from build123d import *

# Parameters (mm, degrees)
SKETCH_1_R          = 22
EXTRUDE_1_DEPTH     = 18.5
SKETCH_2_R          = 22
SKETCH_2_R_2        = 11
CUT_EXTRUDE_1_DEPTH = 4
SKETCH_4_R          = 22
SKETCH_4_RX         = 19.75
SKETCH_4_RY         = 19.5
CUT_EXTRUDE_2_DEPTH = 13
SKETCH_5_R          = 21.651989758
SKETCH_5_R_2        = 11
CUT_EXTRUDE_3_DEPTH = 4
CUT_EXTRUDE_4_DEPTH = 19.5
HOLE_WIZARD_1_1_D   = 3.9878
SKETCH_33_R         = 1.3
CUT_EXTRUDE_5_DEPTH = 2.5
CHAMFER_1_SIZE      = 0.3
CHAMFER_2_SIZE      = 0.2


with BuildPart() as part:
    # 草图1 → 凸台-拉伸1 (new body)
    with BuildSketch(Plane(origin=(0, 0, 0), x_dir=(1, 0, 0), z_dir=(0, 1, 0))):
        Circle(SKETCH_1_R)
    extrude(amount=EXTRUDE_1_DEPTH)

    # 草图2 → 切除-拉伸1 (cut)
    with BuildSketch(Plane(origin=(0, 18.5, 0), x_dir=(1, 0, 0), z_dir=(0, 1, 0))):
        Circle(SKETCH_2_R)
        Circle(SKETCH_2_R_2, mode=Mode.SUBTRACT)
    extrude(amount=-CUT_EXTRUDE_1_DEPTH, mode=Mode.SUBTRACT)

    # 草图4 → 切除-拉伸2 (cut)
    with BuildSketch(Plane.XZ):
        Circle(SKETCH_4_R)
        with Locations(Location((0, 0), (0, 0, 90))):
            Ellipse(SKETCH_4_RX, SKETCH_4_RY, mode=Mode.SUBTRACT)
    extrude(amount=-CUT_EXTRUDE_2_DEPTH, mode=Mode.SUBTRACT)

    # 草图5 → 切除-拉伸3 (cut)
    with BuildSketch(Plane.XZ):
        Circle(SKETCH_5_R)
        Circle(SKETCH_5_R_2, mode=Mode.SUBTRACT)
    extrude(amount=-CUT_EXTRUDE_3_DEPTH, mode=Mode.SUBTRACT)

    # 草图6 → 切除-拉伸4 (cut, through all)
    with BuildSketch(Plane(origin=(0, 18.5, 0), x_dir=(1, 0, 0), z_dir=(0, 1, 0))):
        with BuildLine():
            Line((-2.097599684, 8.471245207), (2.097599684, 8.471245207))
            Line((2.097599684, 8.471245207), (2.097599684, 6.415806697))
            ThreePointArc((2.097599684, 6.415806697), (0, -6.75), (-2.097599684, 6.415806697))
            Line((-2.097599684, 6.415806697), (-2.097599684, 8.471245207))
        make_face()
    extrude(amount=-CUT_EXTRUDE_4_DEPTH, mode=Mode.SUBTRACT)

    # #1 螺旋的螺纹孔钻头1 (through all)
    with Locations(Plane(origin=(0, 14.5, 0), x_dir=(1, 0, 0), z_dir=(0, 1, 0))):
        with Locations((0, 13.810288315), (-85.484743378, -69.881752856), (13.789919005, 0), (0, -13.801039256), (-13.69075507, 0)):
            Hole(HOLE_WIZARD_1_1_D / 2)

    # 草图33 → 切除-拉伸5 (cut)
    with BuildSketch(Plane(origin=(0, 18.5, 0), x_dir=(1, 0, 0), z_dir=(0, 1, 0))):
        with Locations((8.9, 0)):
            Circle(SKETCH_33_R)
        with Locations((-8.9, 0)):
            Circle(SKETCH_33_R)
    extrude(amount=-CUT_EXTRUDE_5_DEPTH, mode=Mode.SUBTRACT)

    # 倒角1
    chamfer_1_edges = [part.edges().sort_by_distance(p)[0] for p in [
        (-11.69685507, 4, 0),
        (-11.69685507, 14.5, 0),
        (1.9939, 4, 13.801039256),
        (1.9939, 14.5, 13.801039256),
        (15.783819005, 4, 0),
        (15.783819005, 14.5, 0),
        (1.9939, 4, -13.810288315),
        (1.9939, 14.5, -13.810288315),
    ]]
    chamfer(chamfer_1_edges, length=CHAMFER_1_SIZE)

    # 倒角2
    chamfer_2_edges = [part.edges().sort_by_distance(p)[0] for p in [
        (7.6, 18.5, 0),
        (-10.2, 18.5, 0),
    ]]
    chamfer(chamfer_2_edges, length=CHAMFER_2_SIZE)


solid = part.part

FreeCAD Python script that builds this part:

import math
import FreeCAD as App
import Part
import Sketcher


def edges_at(feature, points):
    """Names of the edges that pass closest to the given points."""
    edges = feature.Shape.Edges
    near = lambda p: min(range(len(edges)), key=lambda i: edges[i].distToShape(Part.Vertex(*p))[0])
    return sorted({f"Edge{near(p) + 1}" for p in points})

doc = App.newDocument("Part")
params = doc.addObject("Spreadsheet::Sheet", "Params")
for row, (alias, value) in enumerate([
    ("sketch1_diameter", "44 mm"),
    ("pad1_length", "18.5 mm"),
    ("sketch2_diameter", "44 mm"),
    ("sketch2_diameter2", "22 mm"),
    ("pocket1_length", "4 mm"),
    ("sketch3_diameter", "44 mm"),
    ("pocket2_length", "13 mm"),
    ("sketch4_diameter", "22 mm"),
    ("pocket3_length", "4 mm"),
    ("sketch5_radius", "6.75 mm"),
    ("hole_diameter", "3.9878 mm"),
    ("sketch7_diameter", "2.6 mm"),
    ("pocket5_length", "2.5 mm"),
    ("chamfer_size", "0.3 mm"),
    ("chamfer2_size", "0.2 mm"),
], start=1):
    params.set(f"A{row}", alias)
    params.set(f"B{row}", "=" + value)
    params.setAlias(f"B{row}", alias)

body = doc.addObject("PartDesign::Body", "Body")

# Sketch on XZ plane
sketch1 = doc.addObject("Sketcher::SketchObject", "Sketch")
body.addObject(sketch1)
sketch1.AttachmentSupport = (doc.XZ_Plane, [""])
sketch1.MapMode = "FlatFace"
sketch1.addGeometry(Part.Circle(App.Vector(0, 0, 0), App.Vector(0, 0, 1), 22), False)
sketch1.addConstraint(Sketcher.Constraint("Coincident", 0, 3, -1, 1))
sketch1.addConstraint(Sketcher.Constraint("Diameter", 0, 44.0))
sketch1.setExpression("Constraints[1]", "Params.sketch1_diameter")
pad1 = doc.addObject("PartDesign::Pad", "Pad")
body.addObject(pad1)
pad1.Profile = sketch1
pad1.setExpression("Length", "Params.pad1_length")
pad1.Reversed = True

# Sketch on XZ plane
sketch2 = doc.addObject("Sketcher::SketchObject", "Sketch001")
body.addObject(sketch2)
sketch2.AttachmentSupport = (doc.XZ_Plane, [""])
sketch2.MapMode = "FlatFace"
sketch2.AttachmentOffset = App.Placement(App.Vector(0, 0, -18.5), App.Rotation())
sketch2.addGeometry(Part.Circle(App.Vector(0, 0, 0), App.Vector(0, 0, 1), 22), False)
sketch2.addGeometry(Part.Circle(App.Vector(0, 0, 0), App.Vector(0, 0, 1), 11), False)
sketch2.addConstraint(Sketcher.Constraint("Coincident", 0, 3, -1, 1))
sketch2.addConstraint(Sketcher.Constraint("Coincident", 1, 3, -1, 1))
sketch2.addConstraint(Sketcher.Constraint("Diameter", 0, 44.0))
sketch2.addConstraint(Sketcher.Constraint("Diameter", 1, 22.0))
sketch2.setExpression("Constraints[2]", "Params.sketch2_diameter")
sketch2.setExpression("Constraints[3]", "Params.sketch2_diameter2")
pocket1 = doc.addObject("PartDesign::Pocket", "Pocket")
body.addObject(pocket1)
pocket1.Profile = sketch2
pocket1.setExpression("Length", "Params.pocket1_length")
pocket1.Reversed = True

# Sketch on XZ plane
sketch3 = doc.addObject("Sketcher::SketchObject", "Sketch002")
body.addObject(sketch3)
sketch3.AttachmentSupport = (doc.XZ_Plane, [""])
sketch3.MapMode = "FlatFace"
sketch3.addGeometry(Part.Circle(App.Vector(0, 0, 0), App.Vector(0, 0, 1), 22), False)
sketch3.addGeometry(Part.Ellipse(App.Vector(0, 19.75, 0), App.Vector(-19.5, 0, 0), App.Vector(0, 0, 0)), False)
sketch3.addConstraint(Sketcher.Constraint("Block", 1))
sketch3.addConstraint(Sketcher.Constraint("Coincident", 0, 3, -1, 1))
sketch3.addConstraint(Sketcher.Constraint("Diameter", 0, 44.0))
sketch3.setExpression("Constraints[2]", "Params.sketch3_diameter")
pocket2 = doc.addObject("PartDesign::Pocket", "Pocket001")
body.addObject(pocket2)
pocket2.Profile = sketch3
pocket2.setExpression("Length", "Params.pocket2_length")

# Sketch on XZ plane
sketch4 = doc.addObject("Sketcher::SketchObject", "Sketch003")
body.addObject(sketch4)
sketch4.AttachmentSupport = (doc.XZ_Plane, [""])
sketch4.MapMode = "FlatFace"
sketch4.addGeometry(Part.Circle(App.Vector(0, 0, 0), App.Vector(0, 0, 1), 22), False)
sketch4.addGeometry(Part.Circle(App.Vector(0, 0, 0), App.Vector(0, 0, 1), 11), False)
sketch4.addConstraint(Sketcher.Constraint("Coincident", 0, 3, -1, 1))
sketch4.addConstraint(Sketcher.Constraint("Coincident", 1, 3, -1, 1))
sketch4.addConstraint(Sketcher.Constraint("Diameter", 1, 22.0))
sketch4.addConstraint(Sketcher.Constraint("Diameter", 0, 43.30398))
sketch4.setExpression("Constraints[2]", "Params.sketch4_diameter")
pocket3 = doc.addObject("PartDesign::Pocket", "Pocket002")
body.addObject(pocket3)
pocket3.Profile = sketch4
pocket3.setExpression("Length", "Params.pocket3_length")

# Sketch on XZ plane
sketch5 = doc.addObject("Sketcher::SketchObject", "Sketch004")
body.addObject(sketch5)
sketch5.AttachmentSupport = (doc.XZ_Plane, [""])
sketch5.MapMode = "FlatFace"
sketch5.AttachmentOffset = App.Placement(App.Vector(0, 0, -18.5), App.Rotation())
sketch5.addGeometry(Part.LineSegment(App.Vector(2.1, -8.5, 0), App.Vector(-2.1, -8.5, 0)), False)
sketch5.addGeometry(Part.LineSegment(App.Vector(-2.1, -8.5, 0), App.Vector(-2.1, -6.4, 0)), False)
sketch5.addGeometry(Part.ArcOfCircle(Part.Circle(App.Vector(0, 0, 0), App.Vector(0, 0, 1), 6.8), math.radians(-72), math.radians(252)), False)
sketch5.addGeometry(Part.LineSegment(App.Vector(2.1, -6.4, 0), App.Vector(2.1, -8.5, 0)), False)
sketch5.addConstraint(Sketcher.Constraint("Coincident", 0, 2, 1, 1))
sketch5.addConstraint(Sketcher.Constraint("Coincident", 1, 2, 2, 2))
sketch5.addConstraint(Sketcher.Constraint("Coincident", 2, 1, 3, 1))
sketch5.addConstraint(Sketcher.Constraint("Coincident", 3, 2, 0, 1))
sketch5.addConstraint(Sketcher.Constraint("Horizontal", 0))
sketch5.addConstraint(Sketcher.Constraint("Vertical", 1))
sketch5.addConstraint(Sketcher.Constraint("Vertical", 3))
sketch5.addConstraint(Sketcher.Constraint("Coincident", 2, 3, -1, 1))
sketch5.addConstraint(Sketcher.Constraint("Horizontal", 1, 2, 2, 1))
sketch5.addConstraint(Sketcher.Constraint("Radius", 2, 6.75))
sketch5.addConstraint(Sketcher.Constraint("DistanceX", 0, 2, 0, 1, 4.195199))
sketch5.addConstraint(Sketcher.Constraint("DistanceY", 1, 1, 1, 2, 2.055439))
sketch5.setExpression("Constraints[9]", "Params.sketch5_radius")
pocket4 = doc.addObject("PartDesign::Pocket", "Pocket003")
body.addObject(pocket4)
pocket4.Profile = sketch5
pocket4.Type = "ThroughAll"
pocket4.Reversed = True

# Sketch on XZ plane
sketch6 = doc.addObject("Sketcher::SketchObject", "Sketch005")
body.addObject(sketch6)
sketch6.AttachmentSupport = (doc.XZ_Plane, [""])
sketch6.MapMode = "FlatFace"
sketch6.AttachmentOffset = App.Placement(App.Vector(0, 0, -14.5), App.Rotation())
sketch6.addGeometry(Part.Circle(App.Vector(0, -13.8, 0), App.Vector(0, 0, 1), 2), False)
sketch6.addGeometry(Part.Circle(App.Vector(-85.5, 69.9, 0), App.Vector(0, 0, 1), 2), False)
sketch6.addGeometry(Part.Circle(App.Vector(13.8, 0, 0), App.Vector(0, 0, 1), 2), False)
sketch6.addGeometry(Part.Circle(App.Vector(0, 13.8, 0), App.Vector(0, 0, 1), 2), False)
sketch6.addGeometry(Part.Circle(App.Vector(-13.7, 0, 0), App.Vector(0, 0, 1), 2), False)
sketch6.addConstraint(Sketcher.Constraint("Equal", 0, 1))
sketch6.addConstraint(Sketcher.Constraint("Equal", 1, 2))
sketch6.addConstraint(Sketcher.Constraint("Equal", 2, 3))
sketch6.addConstraint(Sketcher.Constraint("Equal", 3, 4))
sketch6.addConstraint(Sketcher.Constraint("PointOnObject", 0, 3, -2))
sketch6.addConstraint(Sketcher.Constraint("PointOnObject", 2, 3, -1))
sketch6.addConstraint(Sketcher.Constraint("PointOnObject", 3, 3, -2))
sketch6.addConstraint(Sketcher.Constraint("PointOnObject", 4, 3, -1))
sketch6.addConstraint(Sketcher.Constraint("Diameter", 0, 3.9878))
sketch6.addConstraint(Sketcher.Constraint("DistanceY", 0, 3, -1, 1, 13.810288))
sketch6.addConstraint(Sketcher.Constraint("DistanceX", -1, 1, 2, 3, 13.789919))
sketch6.addConstraint(Sketcher.Constraint("DistanceY", -1, 1, 3, 3, 13.801039))
sketch6.addConstraint(Sketcher.Constraint("DistanceY", 0, 3, 1, 3, 83.692041))
sketch6.addConstraint(Sketcher.Constraint("DistanceX", 1, 3, 4, 3, 71.793988))
sketch6.addConstraint(Sketcher.Constraint("DistanceX", 1, 3, -1, 1, 85.484743))
doc.recompute()
hole = doc.addObject("PartDesign::Hole", "Hole")
body.addObject(hole)
hole.Profile = sketch6
hole.ThreadType = "None"
hole.setExpression("Diameter", "Params.hole_diameter")
hole.DepthType = "ThroughAll"
hole.Reversed = True

# Sketch on XZ plane
sketch7 = doc.addObject("Sketcher::SketchObject", "Sketch006")
body.addObject(sketch7)
sketch7.AttachmentSupport = (doc.XZ_Plane, [""])
sketch7.MapMode = "FlatFace"
sketch7.AttachmentOffset = App.Placement(App.Vector(0, 0, -18.5), App.Rotation())
sketch7.addGeometry(Part.Circle(App.Vector(8.9, 0, 0), App.Vector(0, 0, 1), 1.3), False)
sketch7.addGeometry(Part.Circle(App.Vector(-8.9, 0, 0), App.Vector(0, 0, 1), 1.3), False)
sketch7.addConstraint(Sketcher.Constraint("Equal", 0, 1))
sketch7.addConstraint(Sketcher.Constraint("Symmetric", 0, 3, 1, 3, -1, 1))
sketch7.addConstraint(Sketcher.Constraint("PointOnObject", 0, 3, -1))
sketch7.addConstraint(Sketcher.Constraint("Diameter", 0, 2.6))
sketch7.addConstraint(Sketcher.Constraint("DistanceX", -1, 1, 0, 3, 8.9))
sketch7.setExpression("Constraints[3]", "Params.sketch7_diameter")
pocket5 = doc.addObject("PartDesign::Pocket", "Pocket004")
body.addObject(pocket5)
pocket5.Profile = sketch7
pocket5.setExpression("Length", "Params.pocket5_length")
pocket5.Reversed = True
doc.recompute()

chamfer = doc.addObject("PartDesign::Chamfer", "Chamfer")
body.addObject(chamfer)
chamfer.Base = (pocket5, edges_at(pocket5, [
    (-11.697, 4, 0),
    (-11.697, 14.5, 0),
    (1.994, 4, 13.801),
    (1.994, 14.5, 13.801),
    (15.784, 4, 0),
    (15.784, 14.5, 0),
    (1.994, 4, -13.81),
    (1.994, 14.5, -13.81),
]))
chamfer.setExpression("Size", "Params.chamfer_size")
doc.recompute()

chamfer2 = doc.addObject("PartDesign::Chamfer", "Chamfer001")
body.addObject(chamfer2)
chamfer2.Base = (chamfer, edges_at(chamfer, [(7.6, 18.5, 0), (-10.2, 18.5, 0)]))
chamfer2.setExpression("Size", "Params.chamfer2_size")

doc.recompute()
